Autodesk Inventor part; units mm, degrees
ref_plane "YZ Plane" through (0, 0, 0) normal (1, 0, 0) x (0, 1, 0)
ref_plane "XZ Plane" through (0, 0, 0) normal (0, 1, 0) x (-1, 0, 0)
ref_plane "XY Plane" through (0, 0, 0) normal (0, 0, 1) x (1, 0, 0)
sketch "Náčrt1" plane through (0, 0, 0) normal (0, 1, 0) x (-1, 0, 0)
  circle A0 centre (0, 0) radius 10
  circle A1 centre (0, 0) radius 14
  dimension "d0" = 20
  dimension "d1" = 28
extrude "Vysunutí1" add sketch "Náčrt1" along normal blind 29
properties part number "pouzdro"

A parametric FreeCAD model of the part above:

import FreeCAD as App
import Part
import Sketcher
from FreeCAD import Vector

doc = App.newDocument("Part")
body = doc.addObject("PartDesign::Body", "Body")

# Sketch on XZ plane
sketch1 = doc.addObject("Sketcher::SketchObject", "Sketch")
body.addObject(sketch1)
sketch1.AttachmentSupport = (doc.XZ_Plane, [""])
sketch1.MapMode = "FlatFace"
sketch1.addGeometry([
    Part.Circle(Vector(0, 0, 0), Vector(0, 0, 1), 14),
    Part.Circle(Vector(0, 0, 0), Vector(0, 0, 1), 10),
], False)
sketch1.addConstraint([
    Sketcher.Constraint("Coincident", 0, 3, -1, 1),
    Sketcher.Constraint("Coincident", 1, 3, -1, 1),
    Sketcher.Constraint("Diameter", 0, 28.0),
    Sketcher.Constraint("Diameter", 1, 20.0),
])
pad1 = doc.addObject("PartDesign::Pad", "Pad")
body.addObject(pad1)
pad1.Profile = sketch1
pad1.Length = 29
pad1.Reversed = True

doc.recompute()
